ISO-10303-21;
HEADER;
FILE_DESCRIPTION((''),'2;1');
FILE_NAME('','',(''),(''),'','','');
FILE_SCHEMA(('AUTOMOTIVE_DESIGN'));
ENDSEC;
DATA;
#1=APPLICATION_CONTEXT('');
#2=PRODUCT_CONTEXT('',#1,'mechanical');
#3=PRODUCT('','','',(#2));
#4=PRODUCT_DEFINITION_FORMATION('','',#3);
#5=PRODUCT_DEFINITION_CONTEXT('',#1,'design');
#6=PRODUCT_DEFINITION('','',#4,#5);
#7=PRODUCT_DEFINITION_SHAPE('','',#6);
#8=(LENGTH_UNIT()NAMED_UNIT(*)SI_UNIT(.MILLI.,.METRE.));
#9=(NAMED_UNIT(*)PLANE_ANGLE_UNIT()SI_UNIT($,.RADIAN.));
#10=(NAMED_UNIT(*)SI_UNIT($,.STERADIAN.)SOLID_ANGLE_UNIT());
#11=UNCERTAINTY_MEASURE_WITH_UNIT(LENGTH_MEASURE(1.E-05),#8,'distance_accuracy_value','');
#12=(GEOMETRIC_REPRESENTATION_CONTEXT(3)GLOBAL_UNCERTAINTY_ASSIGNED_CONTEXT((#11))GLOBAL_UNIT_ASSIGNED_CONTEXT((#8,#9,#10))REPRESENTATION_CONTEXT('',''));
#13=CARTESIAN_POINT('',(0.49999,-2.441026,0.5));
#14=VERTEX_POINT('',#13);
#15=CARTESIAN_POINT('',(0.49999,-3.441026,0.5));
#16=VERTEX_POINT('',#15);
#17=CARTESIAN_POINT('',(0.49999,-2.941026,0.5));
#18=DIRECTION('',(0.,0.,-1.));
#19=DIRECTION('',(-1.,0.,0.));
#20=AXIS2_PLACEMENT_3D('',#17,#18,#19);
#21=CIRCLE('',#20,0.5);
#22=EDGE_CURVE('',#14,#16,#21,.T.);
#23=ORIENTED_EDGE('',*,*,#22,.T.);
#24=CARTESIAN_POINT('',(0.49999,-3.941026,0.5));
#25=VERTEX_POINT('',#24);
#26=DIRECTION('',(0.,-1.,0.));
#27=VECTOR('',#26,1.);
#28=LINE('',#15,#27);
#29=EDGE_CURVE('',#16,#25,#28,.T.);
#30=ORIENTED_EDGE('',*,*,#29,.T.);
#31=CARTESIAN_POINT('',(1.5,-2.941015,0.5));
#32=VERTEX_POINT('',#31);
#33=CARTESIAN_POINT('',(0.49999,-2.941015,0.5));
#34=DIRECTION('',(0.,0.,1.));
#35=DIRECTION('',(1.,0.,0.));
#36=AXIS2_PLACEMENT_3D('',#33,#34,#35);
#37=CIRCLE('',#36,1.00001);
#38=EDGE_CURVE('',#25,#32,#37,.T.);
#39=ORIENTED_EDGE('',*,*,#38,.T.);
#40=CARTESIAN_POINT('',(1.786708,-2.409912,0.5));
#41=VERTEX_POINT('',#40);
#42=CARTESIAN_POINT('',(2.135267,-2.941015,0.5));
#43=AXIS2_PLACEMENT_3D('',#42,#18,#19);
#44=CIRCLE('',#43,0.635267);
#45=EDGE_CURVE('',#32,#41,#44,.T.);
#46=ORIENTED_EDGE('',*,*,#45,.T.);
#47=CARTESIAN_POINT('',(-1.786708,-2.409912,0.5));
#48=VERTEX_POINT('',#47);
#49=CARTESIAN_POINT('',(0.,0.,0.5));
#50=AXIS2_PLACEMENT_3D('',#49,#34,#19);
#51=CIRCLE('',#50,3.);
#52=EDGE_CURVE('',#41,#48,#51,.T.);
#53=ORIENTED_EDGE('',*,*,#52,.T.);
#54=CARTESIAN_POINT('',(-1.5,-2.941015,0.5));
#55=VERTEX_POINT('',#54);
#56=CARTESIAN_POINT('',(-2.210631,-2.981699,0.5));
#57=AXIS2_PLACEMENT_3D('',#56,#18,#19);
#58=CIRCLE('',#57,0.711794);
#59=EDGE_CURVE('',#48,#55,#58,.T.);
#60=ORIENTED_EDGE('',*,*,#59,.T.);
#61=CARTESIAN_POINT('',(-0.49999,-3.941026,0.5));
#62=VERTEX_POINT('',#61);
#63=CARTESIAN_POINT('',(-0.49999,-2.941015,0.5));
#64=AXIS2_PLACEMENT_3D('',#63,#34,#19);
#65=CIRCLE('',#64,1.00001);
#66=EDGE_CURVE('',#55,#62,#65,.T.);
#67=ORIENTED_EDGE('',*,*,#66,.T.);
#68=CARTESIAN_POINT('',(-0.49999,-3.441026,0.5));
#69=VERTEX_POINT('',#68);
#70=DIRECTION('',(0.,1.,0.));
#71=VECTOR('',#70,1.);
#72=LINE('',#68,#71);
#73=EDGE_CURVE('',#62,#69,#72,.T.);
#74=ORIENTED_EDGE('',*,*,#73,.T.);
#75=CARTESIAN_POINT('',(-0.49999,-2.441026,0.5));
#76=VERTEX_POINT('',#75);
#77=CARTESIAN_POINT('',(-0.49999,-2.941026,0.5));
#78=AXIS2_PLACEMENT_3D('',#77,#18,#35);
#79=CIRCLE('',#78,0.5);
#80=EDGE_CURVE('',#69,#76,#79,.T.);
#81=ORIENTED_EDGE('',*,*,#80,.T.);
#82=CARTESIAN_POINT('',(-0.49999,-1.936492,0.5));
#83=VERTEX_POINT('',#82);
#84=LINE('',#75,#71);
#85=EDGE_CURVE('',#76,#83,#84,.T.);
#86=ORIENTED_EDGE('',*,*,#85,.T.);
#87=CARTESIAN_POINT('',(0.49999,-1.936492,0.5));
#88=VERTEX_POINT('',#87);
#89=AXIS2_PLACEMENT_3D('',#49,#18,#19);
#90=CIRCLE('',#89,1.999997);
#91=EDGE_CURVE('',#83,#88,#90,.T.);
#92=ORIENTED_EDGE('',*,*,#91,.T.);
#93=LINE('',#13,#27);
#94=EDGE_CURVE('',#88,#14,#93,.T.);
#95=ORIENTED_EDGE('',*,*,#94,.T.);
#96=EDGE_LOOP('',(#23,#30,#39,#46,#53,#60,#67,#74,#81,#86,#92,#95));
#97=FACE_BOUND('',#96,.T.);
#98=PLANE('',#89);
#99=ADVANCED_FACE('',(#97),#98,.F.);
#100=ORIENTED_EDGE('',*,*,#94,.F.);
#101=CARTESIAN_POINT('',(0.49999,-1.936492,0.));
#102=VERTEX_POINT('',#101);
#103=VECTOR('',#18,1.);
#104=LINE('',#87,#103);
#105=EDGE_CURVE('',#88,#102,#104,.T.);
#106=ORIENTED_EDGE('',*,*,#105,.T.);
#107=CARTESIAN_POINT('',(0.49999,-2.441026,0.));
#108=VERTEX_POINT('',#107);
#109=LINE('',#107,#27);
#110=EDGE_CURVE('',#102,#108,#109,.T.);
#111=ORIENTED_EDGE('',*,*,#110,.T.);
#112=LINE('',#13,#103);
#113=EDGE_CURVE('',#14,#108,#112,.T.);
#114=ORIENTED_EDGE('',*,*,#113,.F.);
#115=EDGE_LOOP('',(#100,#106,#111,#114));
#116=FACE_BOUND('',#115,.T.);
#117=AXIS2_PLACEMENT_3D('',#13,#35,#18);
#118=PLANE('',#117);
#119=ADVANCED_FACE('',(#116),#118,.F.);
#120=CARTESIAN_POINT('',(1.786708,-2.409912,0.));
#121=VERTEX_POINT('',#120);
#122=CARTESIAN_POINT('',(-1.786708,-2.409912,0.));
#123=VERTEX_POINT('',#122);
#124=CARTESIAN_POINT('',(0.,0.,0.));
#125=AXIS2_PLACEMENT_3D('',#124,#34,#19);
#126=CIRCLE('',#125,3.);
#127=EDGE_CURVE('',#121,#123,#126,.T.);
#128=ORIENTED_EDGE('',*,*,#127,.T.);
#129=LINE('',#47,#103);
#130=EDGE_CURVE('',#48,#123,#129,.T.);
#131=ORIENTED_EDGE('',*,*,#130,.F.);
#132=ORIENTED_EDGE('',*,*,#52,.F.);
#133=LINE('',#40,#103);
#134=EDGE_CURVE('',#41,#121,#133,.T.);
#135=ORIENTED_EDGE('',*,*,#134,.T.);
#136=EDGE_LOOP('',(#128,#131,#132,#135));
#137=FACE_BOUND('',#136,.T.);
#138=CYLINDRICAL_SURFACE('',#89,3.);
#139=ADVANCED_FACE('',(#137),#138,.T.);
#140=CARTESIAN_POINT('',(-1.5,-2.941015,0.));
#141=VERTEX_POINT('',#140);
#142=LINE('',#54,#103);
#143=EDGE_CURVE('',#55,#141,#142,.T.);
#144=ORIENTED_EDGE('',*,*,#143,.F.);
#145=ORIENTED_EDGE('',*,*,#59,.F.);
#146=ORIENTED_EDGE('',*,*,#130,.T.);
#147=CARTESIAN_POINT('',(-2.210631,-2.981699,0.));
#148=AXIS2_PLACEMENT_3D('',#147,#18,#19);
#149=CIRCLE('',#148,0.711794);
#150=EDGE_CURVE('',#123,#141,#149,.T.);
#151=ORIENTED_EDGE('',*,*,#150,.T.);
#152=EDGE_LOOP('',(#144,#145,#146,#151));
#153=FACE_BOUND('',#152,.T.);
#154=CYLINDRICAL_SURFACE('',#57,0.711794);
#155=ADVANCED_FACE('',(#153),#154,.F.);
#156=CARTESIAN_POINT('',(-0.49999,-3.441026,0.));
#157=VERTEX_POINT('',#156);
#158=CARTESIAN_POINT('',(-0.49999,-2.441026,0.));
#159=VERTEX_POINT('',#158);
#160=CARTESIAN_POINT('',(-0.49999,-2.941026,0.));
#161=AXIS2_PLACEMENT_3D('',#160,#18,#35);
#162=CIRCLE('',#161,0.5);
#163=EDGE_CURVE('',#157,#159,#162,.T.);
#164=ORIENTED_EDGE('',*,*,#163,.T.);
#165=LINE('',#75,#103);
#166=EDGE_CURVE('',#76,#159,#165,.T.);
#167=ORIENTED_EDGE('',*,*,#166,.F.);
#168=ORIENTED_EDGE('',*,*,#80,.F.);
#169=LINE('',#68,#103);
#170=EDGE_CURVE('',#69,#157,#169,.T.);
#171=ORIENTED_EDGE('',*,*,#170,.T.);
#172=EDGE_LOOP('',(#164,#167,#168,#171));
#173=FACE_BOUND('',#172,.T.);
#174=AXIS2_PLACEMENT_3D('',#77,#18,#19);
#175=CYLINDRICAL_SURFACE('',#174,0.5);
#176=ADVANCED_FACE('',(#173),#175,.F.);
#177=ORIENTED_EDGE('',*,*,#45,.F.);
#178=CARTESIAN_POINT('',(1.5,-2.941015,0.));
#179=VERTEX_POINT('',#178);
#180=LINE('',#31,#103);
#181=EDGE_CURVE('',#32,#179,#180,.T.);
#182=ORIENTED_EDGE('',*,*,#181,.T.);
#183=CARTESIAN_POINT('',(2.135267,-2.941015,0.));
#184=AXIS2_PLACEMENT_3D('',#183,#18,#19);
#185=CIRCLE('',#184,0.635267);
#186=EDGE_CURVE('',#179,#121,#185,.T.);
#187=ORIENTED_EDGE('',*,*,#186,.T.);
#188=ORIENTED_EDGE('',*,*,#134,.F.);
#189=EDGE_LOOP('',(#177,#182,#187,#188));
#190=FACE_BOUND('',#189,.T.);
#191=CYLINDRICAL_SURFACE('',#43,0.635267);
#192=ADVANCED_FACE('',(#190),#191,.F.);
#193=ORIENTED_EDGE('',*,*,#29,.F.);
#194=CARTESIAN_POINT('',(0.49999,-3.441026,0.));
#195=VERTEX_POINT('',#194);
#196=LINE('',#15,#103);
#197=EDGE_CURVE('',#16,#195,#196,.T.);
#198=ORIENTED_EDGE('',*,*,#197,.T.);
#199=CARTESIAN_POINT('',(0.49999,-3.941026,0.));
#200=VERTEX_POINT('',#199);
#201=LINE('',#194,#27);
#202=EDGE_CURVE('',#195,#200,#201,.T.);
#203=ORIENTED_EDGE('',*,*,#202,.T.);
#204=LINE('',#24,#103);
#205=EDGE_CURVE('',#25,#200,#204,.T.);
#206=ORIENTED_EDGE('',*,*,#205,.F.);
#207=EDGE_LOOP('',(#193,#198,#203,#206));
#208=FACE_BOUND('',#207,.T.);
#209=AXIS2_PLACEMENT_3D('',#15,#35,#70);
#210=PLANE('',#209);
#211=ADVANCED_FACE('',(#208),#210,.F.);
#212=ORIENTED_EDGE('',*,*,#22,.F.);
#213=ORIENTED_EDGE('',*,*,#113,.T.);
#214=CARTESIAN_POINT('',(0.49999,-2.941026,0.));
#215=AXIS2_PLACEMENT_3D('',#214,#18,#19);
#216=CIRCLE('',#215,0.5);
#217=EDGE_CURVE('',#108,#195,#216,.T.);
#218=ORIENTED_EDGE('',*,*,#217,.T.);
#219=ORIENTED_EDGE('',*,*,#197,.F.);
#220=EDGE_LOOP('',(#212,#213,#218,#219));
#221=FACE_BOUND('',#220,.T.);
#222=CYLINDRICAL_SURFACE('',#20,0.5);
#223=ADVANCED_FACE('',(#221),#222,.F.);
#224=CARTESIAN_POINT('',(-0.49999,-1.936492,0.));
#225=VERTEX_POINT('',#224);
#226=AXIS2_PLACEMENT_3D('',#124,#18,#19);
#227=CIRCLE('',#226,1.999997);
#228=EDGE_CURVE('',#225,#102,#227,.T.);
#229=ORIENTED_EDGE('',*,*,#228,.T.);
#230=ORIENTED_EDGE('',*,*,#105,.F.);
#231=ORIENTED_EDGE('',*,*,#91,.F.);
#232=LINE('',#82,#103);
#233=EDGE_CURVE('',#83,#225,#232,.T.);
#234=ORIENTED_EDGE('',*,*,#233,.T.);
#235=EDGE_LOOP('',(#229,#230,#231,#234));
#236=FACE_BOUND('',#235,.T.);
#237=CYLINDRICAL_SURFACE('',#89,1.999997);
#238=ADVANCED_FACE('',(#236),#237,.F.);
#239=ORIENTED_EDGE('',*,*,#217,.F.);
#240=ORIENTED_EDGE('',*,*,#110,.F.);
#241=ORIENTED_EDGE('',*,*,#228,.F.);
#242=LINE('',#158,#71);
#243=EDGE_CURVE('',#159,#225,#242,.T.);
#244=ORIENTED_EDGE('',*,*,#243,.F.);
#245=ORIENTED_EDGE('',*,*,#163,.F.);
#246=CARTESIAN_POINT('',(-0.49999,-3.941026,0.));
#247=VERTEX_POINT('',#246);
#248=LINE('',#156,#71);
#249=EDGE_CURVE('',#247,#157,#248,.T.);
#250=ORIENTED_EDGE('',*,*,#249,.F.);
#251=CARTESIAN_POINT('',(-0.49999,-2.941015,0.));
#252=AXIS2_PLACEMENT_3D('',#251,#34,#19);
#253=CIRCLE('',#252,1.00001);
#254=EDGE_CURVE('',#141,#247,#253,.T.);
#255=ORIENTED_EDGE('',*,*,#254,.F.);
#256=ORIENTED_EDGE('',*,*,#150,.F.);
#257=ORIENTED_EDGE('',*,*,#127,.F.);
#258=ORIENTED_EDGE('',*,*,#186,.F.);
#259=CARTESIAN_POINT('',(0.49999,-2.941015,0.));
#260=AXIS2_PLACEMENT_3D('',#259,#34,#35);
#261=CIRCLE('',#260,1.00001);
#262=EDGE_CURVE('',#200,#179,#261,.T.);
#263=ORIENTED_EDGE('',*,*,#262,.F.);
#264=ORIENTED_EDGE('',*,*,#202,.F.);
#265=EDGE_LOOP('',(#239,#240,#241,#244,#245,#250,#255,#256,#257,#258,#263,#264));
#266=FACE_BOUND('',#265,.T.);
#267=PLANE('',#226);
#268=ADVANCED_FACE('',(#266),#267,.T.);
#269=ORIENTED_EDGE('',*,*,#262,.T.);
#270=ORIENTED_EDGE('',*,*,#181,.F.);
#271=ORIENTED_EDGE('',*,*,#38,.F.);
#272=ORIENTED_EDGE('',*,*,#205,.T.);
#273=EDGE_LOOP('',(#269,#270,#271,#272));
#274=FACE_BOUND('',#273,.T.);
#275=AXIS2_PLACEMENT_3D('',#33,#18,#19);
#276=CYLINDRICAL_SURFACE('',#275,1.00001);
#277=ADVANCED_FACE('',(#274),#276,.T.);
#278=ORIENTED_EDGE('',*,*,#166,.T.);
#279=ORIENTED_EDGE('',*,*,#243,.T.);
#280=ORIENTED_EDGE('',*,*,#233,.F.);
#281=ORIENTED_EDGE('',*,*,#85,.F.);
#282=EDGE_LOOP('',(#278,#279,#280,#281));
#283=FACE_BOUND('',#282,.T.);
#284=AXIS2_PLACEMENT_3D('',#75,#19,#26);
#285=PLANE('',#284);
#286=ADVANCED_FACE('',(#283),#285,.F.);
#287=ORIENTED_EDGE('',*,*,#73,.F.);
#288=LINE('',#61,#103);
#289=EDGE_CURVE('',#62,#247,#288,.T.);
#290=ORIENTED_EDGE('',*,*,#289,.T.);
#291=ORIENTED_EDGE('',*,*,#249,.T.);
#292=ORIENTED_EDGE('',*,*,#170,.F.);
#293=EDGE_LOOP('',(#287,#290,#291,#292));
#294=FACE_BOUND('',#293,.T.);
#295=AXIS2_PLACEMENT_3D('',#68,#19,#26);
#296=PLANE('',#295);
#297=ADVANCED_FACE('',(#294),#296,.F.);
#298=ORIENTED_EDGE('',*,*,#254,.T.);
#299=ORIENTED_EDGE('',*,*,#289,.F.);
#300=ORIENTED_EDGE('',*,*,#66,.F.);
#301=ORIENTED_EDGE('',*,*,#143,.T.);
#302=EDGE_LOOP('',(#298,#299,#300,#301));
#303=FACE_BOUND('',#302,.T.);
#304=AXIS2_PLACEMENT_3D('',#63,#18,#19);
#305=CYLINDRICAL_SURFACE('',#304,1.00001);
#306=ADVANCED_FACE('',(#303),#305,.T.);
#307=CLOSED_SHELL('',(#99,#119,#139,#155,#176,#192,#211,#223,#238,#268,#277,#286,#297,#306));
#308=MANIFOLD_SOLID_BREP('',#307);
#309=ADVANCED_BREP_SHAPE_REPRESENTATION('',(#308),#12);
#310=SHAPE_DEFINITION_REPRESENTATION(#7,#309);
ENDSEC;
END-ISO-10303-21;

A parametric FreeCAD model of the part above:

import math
import FreeCAD as App
import Part
import Sketcher

V = App.Vector

doc = App.newDocument("Part")
body = doc.addObject("PartDesign::Body", "Body")

# Sketch on XY plane
sketch1 = doc.addObject("Sketcher::SketchObject", "Sketch")
body.addObject(sketch1)
sketch1.AttachmentSupport = (doc.XY_Plane, [""])
sketch1.MapMode = "FlatFace"
sketch1.addGeometry([
    Part.LineSegment(V(0.5, -1.9, 0), V(0.5, -2.4, 0)),  # 0
    Part.ArcOfCircle(Part.Circle(V(0.5, -2.9, 0), V(0, 0, 1), 0.5), math.radians(-90), math.radians(90)),  # 1
    Part.LineSegment(V(0.5, -3.4, 0), V(0.5, -3.9, 0)),  # 2
    Part.ArcOfCircle(Part.Circle(V(0.5, -2.9, 0), V(0, 0, 1), 1), math.radians(-90), math.radians(0)),  # 3
    Part.ArcOfCircle(Part.Circle(V(2.1, -2.9, 0), V(0, 0, 1), 0.6), math.radians(123), math.radians(180)),  # 4
    Part.ArcOfCircle(Part.Circle(V(0, 0, 0), V(0, 0, 1), 3), math.radians(-53), math.radians(233)),  # 5
    Part.ArcOfCircle(Part.Circle(V(-2.2, -3, 0), V(0, 0, 1), 0.7), math.radians(3), math.radians(53)),  # 6
    Part.ArcOfCircle(Part.Circle(V(-0.5, -2.9, 0), V(0, 0, 1), 1), math.radians(180), math.radians(270)),  # 7
    Part.LineSegment(V(-0.5, -3.9, 0), V(-0.5, -3.4, 0)),  # 8
    Part.ArcOfCircle(Part.Circle(V(-0.5, -2.9, 0), V(0, 0, 1), 0.5), math.radians(90), math.radians(270)),  # 9
    Part.LineSegment(V(-0.5, -2.4, 0), V(-0.5, -1.9, 0)),  # 10
    Part.ArcOfCircle(Part.Circle(V(0, 0, 0), V(0, 0, 1), 2), math.radians(-76), math.radians(256)),  # 11
], False)
sketch1.addConstraint([
    Sketcher.Constraint("Coincident", 0, 2, 1, 2),
    Sketcher.Constraint("Coincident", 1, 1, 2, 1),
    Sketcher.Constraint("Coincident", 2, 2, 3, 1),
    Sketcher.Constraint("Tangent", 3, 2, 4, 2),
    Sketcher.Constraint("Coincident", 4, 1, 5, 1),
    Sketcher.Constraint("Tangent", 5, 2, 6, 2),
    Sketcher.Constraint("Coincident", 6, 1, 7, 1),
    Sketcher.Constraint("Coincident", 7, 2, 8, 1),
    Sketcher.Constraint("Coincident", 8, 2, 9, 2),
    Sketcher.Constraint("Coincident", 9, 1, 10, 1),
    Sketcher.Constraint("Coincident", 10, 2, 11, 2),
    Sketcher.Constraint("Coincident", 11, 1, 0, 1),
    Sketcher.Constraint("Vertical", 0),
    Sketcher.Constraint("Vertical", 2),
    Sketcher.Constraint("Vertical", 8),
    Sketcher.Constraint("Vertical", 10),
    Sketcher.Constraint("Coincident", 5, 3, -1, 1),
    Sketcher.Constraint("Coincident", 11, 3, -1, 1),
    Sketcher.Constraint("Equal", 3, 7),
    Sketcher.Constraint("Equal", 1, 9),
    Sketcher.Constraint("Symmetric", 3, 3, 7, 3, -2),
    Sketcher.Constraint("Symmetric", 1, 3, 9, 3, -2),
    Sketcher.Constraint("Horizontal", 3, 3, 4, 3),
    Sketcher.Constraint("Horizontal", 4, 1, 5, 2),
    Sketcher.Constraint("Horizontal", 3, 2, 6, 1),
    Sketcher.Constraint("Horizontal", 10, 2, 11, 1),
    Sketcher.Constraint("Vertical", 1, 3, 3, 3),
    Sketcher.Constraint("Vertical", 3, 3, 0, 2),
    Sketcher.Constraint("Vertical", 0, 2, 1, 1),
    Sketcher.Constraint("Vertical", 9, 3, 7, 2),
    Sketcher.Constraint("Radius", 5, 3.0),
    Sketcher.Constraint("Radius", 1, 0.5),
    Sketcher.Constraint("DistanceY", 2, 2, 2, 1, 0.5),
    Sketcher.Constraint("DistanceX", -1, 1, 3, 2, 1.5),
    Sketcher.Constraint("Radius", 3, 1.00001),
    Sketcher.Constraint("Radius", 4, 0.635267),
    Sketcher.Constraint("Radius", 6, 0.711794),
    Sketcher.Constraint("Radius", 11, 1.999997),
])
pad1 = doc.addObject("PartDesign::Pad", "Pad")
body.addObject(pad1)
pad1.Profile = sketch1
pad1.Length = 0.5

doc.recompute()
